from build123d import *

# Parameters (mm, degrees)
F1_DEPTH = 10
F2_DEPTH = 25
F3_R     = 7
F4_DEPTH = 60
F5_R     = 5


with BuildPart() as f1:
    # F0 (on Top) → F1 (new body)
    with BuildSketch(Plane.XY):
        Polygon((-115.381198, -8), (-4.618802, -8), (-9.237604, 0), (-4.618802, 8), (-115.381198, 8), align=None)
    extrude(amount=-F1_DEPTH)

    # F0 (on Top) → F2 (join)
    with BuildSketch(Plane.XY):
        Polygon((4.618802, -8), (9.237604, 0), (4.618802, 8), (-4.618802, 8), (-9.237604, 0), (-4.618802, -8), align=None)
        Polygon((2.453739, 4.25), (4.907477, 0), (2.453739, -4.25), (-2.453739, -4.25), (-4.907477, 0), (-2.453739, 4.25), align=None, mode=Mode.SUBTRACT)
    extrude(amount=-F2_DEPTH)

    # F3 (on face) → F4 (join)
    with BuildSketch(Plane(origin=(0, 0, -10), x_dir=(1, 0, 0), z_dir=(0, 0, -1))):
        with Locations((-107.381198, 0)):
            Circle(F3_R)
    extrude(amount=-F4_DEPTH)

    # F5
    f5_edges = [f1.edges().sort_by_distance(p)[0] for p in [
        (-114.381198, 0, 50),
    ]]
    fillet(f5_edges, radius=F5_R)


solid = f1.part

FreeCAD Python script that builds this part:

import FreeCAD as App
import Part
import Sketcher

V = App.Vector
Q = App.Units.Quantity


def edges_at(feature, points):
    """Names of the edges that pass closest to the given points."""
    edges = feature.Shape.Edges
    near = lambda p: min(range(len(edges)), key=lambda i: edges[i].distToShape(Part.Vertex(*p))[0])
    return sorted({f"Edge{near(p) + 1}" for p in points})


def add_polygon(sketch, points):
    """Adds a closed chain of lines whose ends are joined by coincident constraints."""
    first, n = sketch.GeometryCount, len(points)
    for a, b in zip(points, points[1:] + points[:1]):
        sketch.addGeometry(Part.LineSegment(App.Vector(*a, 0), App.Vector(*b, 0)), False)
    for i in range(n):
        sketch.addConstraint(Sketcher.Constraint("Coincident", first + i, 2, first + (i + 1) % n, 1))

doc = App.newDocument("Part")
params = doc.addObject("Spreadsheet::Sheet", "Params")
for row, (alias, value) in enumerate([
    ("sketch1_height", "16 mm"),
    ("pad1_length", "10 mm"),
    ("pad2_length", "25 mm"),
    ("sketch3_diameter", "14 mm"),
    ("pad3_length", "60 mm"),
    ("fillet_radius", "5 mm"),
], start=1):
    params.set(f"A{row}", alias)
    params.set(f"B{row}", "=" + value)
    params.setAlias(f"B{row}", alias)

body = doc.addObject("PartDesign::Body", "Body")

sketch1 = body.newObject("Sketcher::SketchObject", "Sketch")
sketch1.AttachmentSupport = (doc.getObject("XY_Plane"), [""])
sketch1.MapMode = "FlatFace"
add_polygon(sketch1, [(-115, -8), (-5, -8), (-9, 0), (-5, 8), (-115, 8)])
sketch1.addConstraint(Sketcher.Constraint("Horizontal", 0))
sketch1.addConstraint(Sketcher.Constraint("Horizontal", 3))
sketch1.addConstraint(Sketcher.Constraint("Vertical", 4))
sketch1.addConstraint(Sketcher.Constraint("Symmetric", 0, 2, 2, 2, -1))
sketch1.addConstraint(Sketcher.Constraint("PointOnObject", 1, 2, -1))
sketch1.addConstraint(Sketcher.Constraint("DistanceY", 4, 2, 4, 1, Q("16 mm")))
sketch1.addConstraint(Sketcher.Constraint("Angle", 1, Q("119.999999 deg")))
sketch1.addConstraint(Sketcher.Constraint("DistanceX", 0, 2, -1, 1, Q("4.618802 mm")))
sketch1.addConstraint(Sketcher.Constraint("DistanceX", 0, 1, 0, 2, Q("110.762396 mm")))
sketch1.setExpression("Constraints[10]", "Params.sketch1_height")
pad1 = body.newObject("PartDesign::Pad", "Pad")
pad1.Profile = sketch1
pad1.setExpression("Length", "Params.pad1_length")
pad1.Reversed = True

sketch2 = body.newObject("Sketcher::SketchObject", "Sketch001")
sketch2.AttachmentSupport = (doc.getObject("XY_Plane"), [""])
sketch2.MapMode = "FlatFace"
add_polygon(sketch2, [(4.6, -8), (9.2, 0), (4.6, 8), (-4.6, 8), (-9.2, 0), (-4.6, -8)])
add_polygon(sketch2, [(-2.5, 4.2), (2.5, 4.2), (4.9, 0), (2.5, -4.2), (-2.5, -4.2), (-4.9, 0)])
sketch2.addConstraint(Sketcher.Constraint("Horizontal", 2))
sketch2.addConstraint(Sketcher.Constraint("Horizontal", 5))
sketch2.addConstraint(Sketcher.Constraint("Horizontal", 6))
sketch2.addConstraint(Sketcher.Constraint("Horizontal", 9))
sketch2.addConstraint(Sketcher.Constraint("Symmetric", 0, 2, 3, 2, -1, 1))
sketch2.addConstraint(Sketcher.Constraint("Symmetric", 1, 2, 4, 2, -1, 1))
sketch2.addConstraint(Sketcher.Constraint("Symmetric", 6, 2, 9, 2, -1, 1))
sketch2.addConstraint(Sketcher.Constraint("Symmetric", 7, 2, 10, 2, -1, 1))
sketch2.addConstraint(Sketcher.Constraint("PointOnObject", 0, 2, -1))
sketch2.addConstraint(Sketcher.Constraint("PointOnObject", 7, 2, -1))
sketch2.addConstraint(Sketcher.Constraint("Parallel", 0, 3))
sketch2.addConstraint(Sketcher.Constraint("Parallel", 4, 7))
sketch2.addConstraint(Sketcher.Constraint("Parallel", 3, 8))
sketch2.addConstraint(Sketcher.Constraint("Parallel", 8, 11))
sketch2.addConstraint(Sketcher.Constraint("Vertical", 2, 2, 4, 2))
sketch2.addConstraint(Sketcher.Constraint("Angle", 0, Q("60.000001 deg")))
sketch2.addConstraint(Sketcher.Constraint("DistanceY", -1, 1, 1, 2, Q("8 mm")))
sketch2.addConstraint(Sketcher.Constraint("DistanceY", 8, 2, 6, 2, Q("8.5 mm")))
sketch2.addConstraint(Sketcher.Constraint("DistanceX", 6, 1, 6, 2, Q("4.907478 mm")))
sketch2.addConstraint(Sketcher.Constraint("DistanceX", -1, 1, 1, 2, Q("4.618802 mm")))
pad2 = body.newObject("PartDesign::Pad", "Pad001")
pad2.Profile = sketch2
pad2.setExpression("Length", "Params.pad2_length")
pad2.Reversed = True

sketch3 = body.newObject("Sketcher::SketchObject", "Sketch002")
sketch3.AttachmentSupport = (doc.getObject("XY_Plane"), [""])
sketch3.MapMode = "FlatFace"
sketch3.AttachmentOffset = App.Placement(V(0, 0, -10), App.Rotation())
sketch3.addGeometry(Part.Circle(V(-107, 0, 0), V(0, 0, 1), 7), False)
sketch3.addConstraint(Sketcher.Constraint("PointOnObject", 0, 3, -1))
sketch3.addConstraint(Sketcher.Constraint("Diameter", 0, Q("14 mm")))
sketch3.addConstraint(Sketcher.Constraint("DistanceX", 0, 3, -1, 1, Q("107.381198 mm")))
sketch3.setExpression("Constraints[1]", "Params.sketch3_diameter")
pad3 = body.newObject("PartDesign::Pad", "Pad002")
pad3.Profile = sketch3
pad3.setExpression("Length", "Params.pad3_length")
doc.recompute()

fillet = body.newObject("PartDesign::Fillet", "Fillet")
fillet.Base = (pad3, edges_at(pad3, [(-114.381, 0, 50)]))
fillet.setExpression("Radius", "Params.fillet_radius")

doc.recompute()
